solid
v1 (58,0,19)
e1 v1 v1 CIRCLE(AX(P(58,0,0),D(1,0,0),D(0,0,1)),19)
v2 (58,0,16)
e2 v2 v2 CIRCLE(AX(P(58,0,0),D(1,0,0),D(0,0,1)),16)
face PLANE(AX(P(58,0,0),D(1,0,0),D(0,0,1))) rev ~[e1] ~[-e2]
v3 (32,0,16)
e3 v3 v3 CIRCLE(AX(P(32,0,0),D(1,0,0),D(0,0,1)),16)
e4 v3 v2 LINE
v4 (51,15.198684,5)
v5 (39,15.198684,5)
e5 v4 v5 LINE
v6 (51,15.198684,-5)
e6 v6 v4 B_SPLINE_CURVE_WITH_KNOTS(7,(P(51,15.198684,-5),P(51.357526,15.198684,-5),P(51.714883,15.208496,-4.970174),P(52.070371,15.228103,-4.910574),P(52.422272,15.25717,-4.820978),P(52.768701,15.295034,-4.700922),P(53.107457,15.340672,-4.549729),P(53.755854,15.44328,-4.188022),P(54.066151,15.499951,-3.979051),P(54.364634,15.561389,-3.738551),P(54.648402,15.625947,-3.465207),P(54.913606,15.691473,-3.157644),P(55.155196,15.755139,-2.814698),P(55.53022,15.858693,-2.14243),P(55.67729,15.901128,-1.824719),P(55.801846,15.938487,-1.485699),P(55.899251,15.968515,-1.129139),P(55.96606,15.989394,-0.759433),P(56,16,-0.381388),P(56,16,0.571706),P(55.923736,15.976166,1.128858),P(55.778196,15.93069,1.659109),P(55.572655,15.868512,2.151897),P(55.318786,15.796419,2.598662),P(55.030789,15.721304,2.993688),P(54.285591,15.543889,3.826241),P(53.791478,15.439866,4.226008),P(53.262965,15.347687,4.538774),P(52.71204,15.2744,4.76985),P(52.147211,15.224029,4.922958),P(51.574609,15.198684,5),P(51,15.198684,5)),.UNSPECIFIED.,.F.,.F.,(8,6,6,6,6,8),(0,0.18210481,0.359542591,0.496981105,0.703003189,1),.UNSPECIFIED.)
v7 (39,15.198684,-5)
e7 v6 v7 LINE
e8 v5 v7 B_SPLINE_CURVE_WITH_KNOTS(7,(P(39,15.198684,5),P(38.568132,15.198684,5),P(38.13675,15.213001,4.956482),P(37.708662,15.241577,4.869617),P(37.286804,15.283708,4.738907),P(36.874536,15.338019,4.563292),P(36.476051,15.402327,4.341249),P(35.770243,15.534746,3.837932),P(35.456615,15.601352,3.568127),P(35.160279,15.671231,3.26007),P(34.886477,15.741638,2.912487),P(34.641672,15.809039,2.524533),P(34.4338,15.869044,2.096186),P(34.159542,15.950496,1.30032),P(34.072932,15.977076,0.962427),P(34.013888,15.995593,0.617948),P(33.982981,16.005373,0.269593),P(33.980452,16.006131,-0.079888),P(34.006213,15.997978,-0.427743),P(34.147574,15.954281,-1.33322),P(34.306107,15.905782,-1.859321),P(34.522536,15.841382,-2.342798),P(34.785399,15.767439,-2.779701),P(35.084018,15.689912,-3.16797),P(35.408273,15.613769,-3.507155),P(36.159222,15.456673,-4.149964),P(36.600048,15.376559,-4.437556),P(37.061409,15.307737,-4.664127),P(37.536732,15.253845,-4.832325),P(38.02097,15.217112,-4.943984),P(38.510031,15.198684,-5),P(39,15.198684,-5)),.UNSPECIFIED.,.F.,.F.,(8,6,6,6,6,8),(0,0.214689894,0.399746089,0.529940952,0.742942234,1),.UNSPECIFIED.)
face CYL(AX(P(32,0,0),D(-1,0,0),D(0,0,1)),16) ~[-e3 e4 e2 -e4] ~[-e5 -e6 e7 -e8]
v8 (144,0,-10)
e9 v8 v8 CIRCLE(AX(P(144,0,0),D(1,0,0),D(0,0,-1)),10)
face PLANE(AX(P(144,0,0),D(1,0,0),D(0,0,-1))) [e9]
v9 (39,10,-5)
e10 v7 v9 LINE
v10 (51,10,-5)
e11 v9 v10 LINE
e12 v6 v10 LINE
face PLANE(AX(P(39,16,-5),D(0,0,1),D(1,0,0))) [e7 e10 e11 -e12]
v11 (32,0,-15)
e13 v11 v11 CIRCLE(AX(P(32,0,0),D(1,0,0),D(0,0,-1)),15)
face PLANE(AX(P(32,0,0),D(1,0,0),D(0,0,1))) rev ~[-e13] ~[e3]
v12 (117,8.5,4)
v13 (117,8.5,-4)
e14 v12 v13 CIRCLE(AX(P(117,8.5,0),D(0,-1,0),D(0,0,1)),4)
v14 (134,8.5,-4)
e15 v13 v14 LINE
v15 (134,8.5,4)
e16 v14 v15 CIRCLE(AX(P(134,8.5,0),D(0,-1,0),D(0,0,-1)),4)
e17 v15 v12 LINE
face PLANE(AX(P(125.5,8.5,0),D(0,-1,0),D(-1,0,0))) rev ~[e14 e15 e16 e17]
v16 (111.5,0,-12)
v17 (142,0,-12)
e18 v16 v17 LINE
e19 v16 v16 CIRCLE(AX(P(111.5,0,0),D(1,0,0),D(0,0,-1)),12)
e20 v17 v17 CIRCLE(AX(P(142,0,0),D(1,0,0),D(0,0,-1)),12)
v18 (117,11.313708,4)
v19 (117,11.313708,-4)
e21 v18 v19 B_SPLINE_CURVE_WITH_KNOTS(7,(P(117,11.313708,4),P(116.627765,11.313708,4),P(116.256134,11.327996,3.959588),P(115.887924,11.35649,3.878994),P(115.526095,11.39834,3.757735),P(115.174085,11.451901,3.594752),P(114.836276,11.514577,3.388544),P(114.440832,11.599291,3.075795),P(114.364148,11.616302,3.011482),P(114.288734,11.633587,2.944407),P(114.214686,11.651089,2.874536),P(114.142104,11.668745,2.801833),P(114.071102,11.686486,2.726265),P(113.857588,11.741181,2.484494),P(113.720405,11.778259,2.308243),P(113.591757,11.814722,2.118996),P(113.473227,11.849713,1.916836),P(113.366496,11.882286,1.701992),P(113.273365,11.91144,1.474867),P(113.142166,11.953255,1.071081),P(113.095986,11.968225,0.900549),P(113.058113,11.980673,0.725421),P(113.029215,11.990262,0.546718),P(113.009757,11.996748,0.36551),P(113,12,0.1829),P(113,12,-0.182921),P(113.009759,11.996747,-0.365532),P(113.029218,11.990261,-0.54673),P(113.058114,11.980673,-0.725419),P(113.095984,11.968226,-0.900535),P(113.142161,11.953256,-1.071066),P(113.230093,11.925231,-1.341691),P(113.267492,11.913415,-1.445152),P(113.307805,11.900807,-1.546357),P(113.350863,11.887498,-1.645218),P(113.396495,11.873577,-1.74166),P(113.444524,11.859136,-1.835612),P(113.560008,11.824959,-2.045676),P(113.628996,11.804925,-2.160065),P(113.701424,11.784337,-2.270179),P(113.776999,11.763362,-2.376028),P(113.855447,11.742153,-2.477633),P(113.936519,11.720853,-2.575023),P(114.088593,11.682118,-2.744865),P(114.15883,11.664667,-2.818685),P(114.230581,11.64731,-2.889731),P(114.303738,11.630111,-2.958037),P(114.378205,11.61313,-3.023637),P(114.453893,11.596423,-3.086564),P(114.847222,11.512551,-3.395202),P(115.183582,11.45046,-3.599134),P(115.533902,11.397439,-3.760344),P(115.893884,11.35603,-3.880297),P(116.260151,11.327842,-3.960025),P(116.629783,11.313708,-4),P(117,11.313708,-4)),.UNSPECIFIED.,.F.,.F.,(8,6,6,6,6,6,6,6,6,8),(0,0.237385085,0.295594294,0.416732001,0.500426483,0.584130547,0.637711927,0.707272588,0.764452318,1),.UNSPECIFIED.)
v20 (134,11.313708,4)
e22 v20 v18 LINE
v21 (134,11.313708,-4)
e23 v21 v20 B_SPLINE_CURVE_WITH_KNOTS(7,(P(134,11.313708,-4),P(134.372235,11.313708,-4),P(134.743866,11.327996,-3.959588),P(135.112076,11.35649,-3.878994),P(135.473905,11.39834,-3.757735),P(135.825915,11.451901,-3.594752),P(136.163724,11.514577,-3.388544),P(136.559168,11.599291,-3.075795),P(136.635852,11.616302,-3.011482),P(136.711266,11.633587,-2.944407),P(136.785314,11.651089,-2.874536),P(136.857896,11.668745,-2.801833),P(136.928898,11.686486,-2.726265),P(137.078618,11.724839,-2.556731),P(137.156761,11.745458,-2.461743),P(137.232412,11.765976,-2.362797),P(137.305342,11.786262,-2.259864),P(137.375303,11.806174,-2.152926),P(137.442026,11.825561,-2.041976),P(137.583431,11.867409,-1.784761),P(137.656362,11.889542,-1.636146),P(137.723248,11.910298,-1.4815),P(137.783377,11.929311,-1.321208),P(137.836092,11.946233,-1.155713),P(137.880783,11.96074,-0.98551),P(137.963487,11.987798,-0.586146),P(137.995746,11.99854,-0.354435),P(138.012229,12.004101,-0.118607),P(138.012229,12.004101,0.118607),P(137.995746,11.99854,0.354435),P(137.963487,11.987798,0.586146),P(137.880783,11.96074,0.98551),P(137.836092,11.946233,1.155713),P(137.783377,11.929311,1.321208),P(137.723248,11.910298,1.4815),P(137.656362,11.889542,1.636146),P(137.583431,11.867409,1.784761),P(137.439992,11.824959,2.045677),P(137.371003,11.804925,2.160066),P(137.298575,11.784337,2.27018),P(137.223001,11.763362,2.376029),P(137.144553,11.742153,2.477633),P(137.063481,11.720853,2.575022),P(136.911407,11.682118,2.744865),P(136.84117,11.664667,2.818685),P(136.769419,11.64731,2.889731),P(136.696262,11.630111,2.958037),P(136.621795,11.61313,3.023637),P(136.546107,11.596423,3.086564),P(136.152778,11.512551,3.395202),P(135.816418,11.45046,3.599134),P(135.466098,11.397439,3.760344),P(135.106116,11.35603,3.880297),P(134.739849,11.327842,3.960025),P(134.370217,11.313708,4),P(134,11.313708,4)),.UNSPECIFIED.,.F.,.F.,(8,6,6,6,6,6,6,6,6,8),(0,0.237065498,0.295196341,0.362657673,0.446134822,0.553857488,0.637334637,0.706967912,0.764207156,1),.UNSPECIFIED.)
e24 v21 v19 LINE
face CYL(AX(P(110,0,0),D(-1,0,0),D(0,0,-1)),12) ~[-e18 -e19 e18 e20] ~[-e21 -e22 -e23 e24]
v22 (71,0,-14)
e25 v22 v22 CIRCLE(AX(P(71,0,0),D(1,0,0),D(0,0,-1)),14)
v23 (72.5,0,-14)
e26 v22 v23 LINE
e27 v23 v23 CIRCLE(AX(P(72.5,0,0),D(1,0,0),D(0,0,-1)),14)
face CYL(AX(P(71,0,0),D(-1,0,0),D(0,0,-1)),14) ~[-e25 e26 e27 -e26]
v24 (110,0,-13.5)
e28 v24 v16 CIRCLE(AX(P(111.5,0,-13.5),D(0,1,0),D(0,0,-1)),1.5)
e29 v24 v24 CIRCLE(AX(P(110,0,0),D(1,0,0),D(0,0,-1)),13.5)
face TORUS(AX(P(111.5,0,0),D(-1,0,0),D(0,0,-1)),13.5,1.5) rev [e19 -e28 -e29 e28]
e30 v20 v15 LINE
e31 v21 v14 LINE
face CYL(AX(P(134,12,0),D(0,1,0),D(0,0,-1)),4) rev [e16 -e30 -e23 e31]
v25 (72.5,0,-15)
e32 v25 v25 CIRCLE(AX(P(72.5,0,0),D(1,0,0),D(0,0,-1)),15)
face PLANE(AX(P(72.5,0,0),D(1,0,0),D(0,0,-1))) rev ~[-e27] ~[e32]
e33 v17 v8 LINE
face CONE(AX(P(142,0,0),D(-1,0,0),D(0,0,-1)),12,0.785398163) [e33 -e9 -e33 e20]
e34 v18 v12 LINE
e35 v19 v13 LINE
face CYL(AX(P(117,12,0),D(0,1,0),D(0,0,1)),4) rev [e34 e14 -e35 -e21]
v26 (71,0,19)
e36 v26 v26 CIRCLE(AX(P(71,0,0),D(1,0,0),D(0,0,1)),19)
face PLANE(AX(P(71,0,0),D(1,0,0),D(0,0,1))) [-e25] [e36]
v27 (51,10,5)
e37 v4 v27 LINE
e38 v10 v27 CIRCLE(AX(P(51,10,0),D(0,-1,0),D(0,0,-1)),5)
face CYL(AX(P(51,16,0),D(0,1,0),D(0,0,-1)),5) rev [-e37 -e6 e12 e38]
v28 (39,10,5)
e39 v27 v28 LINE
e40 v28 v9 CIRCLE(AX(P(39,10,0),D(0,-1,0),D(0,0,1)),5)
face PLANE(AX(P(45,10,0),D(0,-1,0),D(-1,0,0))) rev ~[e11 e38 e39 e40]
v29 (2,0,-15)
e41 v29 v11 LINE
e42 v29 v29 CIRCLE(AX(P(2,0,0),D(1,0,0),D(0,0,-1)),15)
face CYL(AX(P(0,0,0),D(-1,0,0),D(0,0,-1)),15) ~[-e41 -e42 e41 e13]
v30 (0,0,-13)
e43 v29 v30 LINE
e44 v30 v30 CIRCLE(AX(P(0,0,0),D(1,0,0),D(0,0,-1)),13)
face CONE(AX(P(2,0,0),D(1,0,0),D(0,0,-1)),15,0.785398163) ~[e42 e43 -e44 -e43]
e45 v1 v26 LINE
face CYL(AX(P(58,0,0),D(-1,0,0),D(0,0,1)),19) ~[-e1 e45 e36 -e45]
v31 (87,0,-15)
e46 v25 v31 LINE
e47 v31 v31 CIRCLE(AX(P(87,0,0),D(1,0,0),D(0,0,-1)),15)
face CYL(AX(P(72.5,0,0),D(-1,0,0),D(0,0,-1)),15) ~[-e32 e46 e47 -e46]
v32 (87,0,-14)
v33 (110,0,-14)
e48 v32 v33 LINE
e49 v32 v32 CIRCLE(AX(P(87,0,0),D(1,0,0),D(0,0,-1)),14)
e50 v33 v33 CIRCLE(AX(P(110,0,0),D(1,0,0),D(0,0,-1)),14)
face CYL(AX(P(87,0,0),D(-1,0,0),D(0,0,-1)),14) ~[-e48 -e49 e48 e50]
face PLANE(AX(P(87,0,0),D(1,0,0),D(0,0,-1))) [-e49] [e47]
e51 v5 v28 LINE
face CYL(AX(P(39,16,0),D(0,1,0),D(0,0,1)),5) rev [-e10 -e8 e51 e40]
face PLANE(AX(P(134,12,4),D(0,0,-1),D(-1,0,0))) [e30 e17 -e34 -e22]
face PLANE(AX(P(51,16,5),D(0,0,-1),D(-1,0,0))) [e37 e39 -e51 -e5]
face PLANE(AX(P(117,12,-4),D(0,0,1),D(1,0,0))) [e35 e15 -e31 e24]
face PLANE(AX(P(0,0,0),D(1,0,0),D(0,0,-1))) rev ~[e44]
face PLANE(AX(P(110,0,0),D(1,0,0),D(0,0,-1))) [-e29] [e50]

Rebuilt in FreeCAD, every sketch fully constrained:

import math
import FreeCAD as App
import Part
import Sketcher
from FreeCAD import Vector


def edges_at(feature, points):
    """Names of the edges that pass closest to the given points."""
    edges = feature.Shape.Edges
    near = lambda p: min(range(len(edges)), key=lambda i: edges[i].distToShape(Part.Vertex(*p))[0])
    return sorted({f"Edge{near(p) + 1}" for p in points})

doc = App.newDocument("Part")
body = doc.addObject("PartDesign::Body", "Body")

# Sketch on YZ plane
sketch1 = body.newObject("Sketcher::SketchObject", "Sketch")
sketch1.AttachmentSupport = (doc.getObject("YZ_Plane"), [""])
sketch1.MapMode = "FlatFace"
sketch1.addGeometry(Part.Circle(Vector(0, 0, 0), Vector(0, 0, 1), 15), False)
sketch1.addConstraint([
    Sketcher.Constraint("Coincident", 0, 3, -1, 1),
    Sketcher.Constraint("Diameter", 0, 30.0),
])
pad1 = body.newObject("PartDesign::Pad", "Pad")
pad1.Profile = sketch1
pad1.Length = 32
doc.recompute()

chamfer = body.newObject("PartDesign::Chamfer", "Chamfer")
chamfer.Base = (pad1, edges_at(pad1, [(0, 0, 15)]))
chamfer.Size = 2

# Sketch on YZ plane
sketch2 = body.newObject("Sketcher::SketchObject", "Sketch001")
sketch2.AttachmentSupport = (doc.getObject("YZ_Plane"), [""])
sketch2.MapMode = "FlatFace"
sketch2.AttachmentOffset = App.Placement(Vector(0, 0, 32), App.Rotation())
sketch2.addGeometry(Part.Circle(Vector(0, 0, 0), Vector(0, 0, 1), 16), False)
sketch2.addConstraint([
    Sketcher.Constraint("Coincident", 0, 3, -1, 1),
    Sketcher.Constraint("Diameter", 0, 32.0),
])
pad2 = body.newObject("PartDesign::Pad", "Pad001")
pad2.Profile = sketch2
pad2.Length = 26

# Sketch on YZ plane
sketch3 = body.newObject("Sketcher::SketchObject", "Sketch002")
sketch3.AttachmentSupport = (doc.getObject("YZ_Plane"), [""])
sketch3.MapMode = "FlatFace"
sketch3.AttachmentOffset = App.Placement(Vector(0, 0, 58), App.Rotation())
sketch3.addGeometry(Part.Circle(Vector(0, 0, 0), Vector(0, 0, 1), 19), False)
sketch3.addConstraint([
    Sketcher.Constraint("Coincident", 0, 3, -1, 1),
    Sketcher.Constraint("Diameter", 0, 38.0),
])
pad3 = body.newObject("PartDesign::Pad", "Pad002")
pad3.Profile = sketch3
pad3.Length = 13

# Sketch on YZ plane
sketch4 = body.newObject("Sketcher::SketchObject", "Sketch003")
sketch4.AttachmentSupport = (doc.getObject("YZ_Plane"), [""])
sketch4.MapMode = "FlatFace"
sketch4.AttachmentOffset = App.Placement(Vector(0, 0, 71), App.Rotation())
sketch4.addGeometry(Part.Circle(Vector(0, 0, 0), Vector(0, 0, 1), 14), False)
sketch4.addConstraint([
    Sketcher.Constraint("Coincident", 0, 3, -1, 1),
    Sketcher.Constraint("Diameter", 0, 28.0),
])
pad4 = body.newObject("PartDesign::Pad", "Pad003")
pad4.Profile = sketch4
pad4.Length = 1.5

# Sketch on YZ plane
sketch5 = body.newObject("Sketcher::SketchObject", "Sketch004")
sketch5.AttachmentSupport = (doc.getObject("YZ_Plane"), [""])
sketch5.MapMode = "FlatFace"
sketch5.AttachmentOffset = App.Placement(Vector(0, 0, 72.5), App.Rotation())
sketch5.addGeometry(Part.Circle(Vector(0, 0, 0), Vector(0, 0, 1), 15), False)
sketch5.addConstraint([
    Sketcher.Constraint("Coincident", 0, 3, -1, 1),
    Sketcher.Constraint("Diameter", 0, 30.0),
])
pad5 = body.newObject("PartDesign::Pad", "Pad004")
pad5.Profile = sketch5
pad5.Length = 14.5

# Sketch on YZ plane
sketch6 = body.newObject("Sketcher::SketchObject", "Sketch005")
sketch6.AttachmentSupport = (doc.getObject("YZ_Plane"), [""])
sketch6.MapMode = "FlatFace"
sketch6.AttachmentOffset = App.Placement(Vector(0, 0, 87), App.Rotation())
sketch6.addGeometry(Part.Circle(Vector(0, 0, 0), Vector(0, 0, 1), 14), False)
sketch6.addConstraint([
    Sketcher.Constraint("Coincident", 0, 3, -1, 1),
    Sketcher.Constraint("Diameter", 0, 28.0),
])
pad6 = body.newObject("PartDesign::Pad", "Pad005")
pad6.Profile = sketch6
pad6.Length = 23

# Sketch on YZ plane
sketch7 = body.newObject("Sketcher::SketchObject", "Sketch006")
sketch7.AttachmentSupport = (doc.getObject("YZ_Plane"), [""])
sketch7.MapMode = "FlatFace"
sketch7.AttachmentOffset = App.Placement(Vector(0, 0, 110), App.Rotation())
sketch7.addGeometry(Part.Circle(Vector(0, 0, 0), Vector(0, 0, 1), 12), False)
sketch7.addConstraint([
    Sketcher.Constraint("Coincident", 0, 3, -1, 1),
    Sketcher.Constraint("Diameter", 0, 24.0),
])
pad7 = body.newObject("PartDesign::Pad", "Pad006")
pad7.Profile = sketch7
pad7.Length = 34
doc.recompute()

fillet = body.newObject("PartDesign::Fillet", "Fillet")
fillet.Base = (pad7, edges_at(pad7, [(110, 0, 12)]))
fillet.Radius = 1.5
doc.recompute()

chamfer2 = body.newObject("PartDesign::Chamfer", "Chamfer001")
chamfer2.Base = (fillet, edges_at(fillet, [(144, 0, 12)]))
chamfer2.Size = 2

# Sketch on XZ plane
sketch8 = body.newObject("Sketcher::SketchObject", "Sketch007")
sketch8.AttachmentSupport = (doc.getObject("XZ_Plane"), [""])
sketch8.MapMode = "FlatFace"
sketch8.AttachmentOffset = App.Placement(Vector(0, 0, -16), App.Rotation())
sketch8.addGeometry([
    Part.LineSegment(Vector(51, -5, 0), Vector(39, -5, 0)),
    Part.ArcOfCircle(Part.Circle(Vector(39, 0, 0), Vector(0, 0, 1), 5), math.radians(90), math.radians(270)),
    Part.LineSegment(Vector(39, 5, 0), Vector(51, 5, 0)),
    Part.ArcOfCircle(Part.Circle(Vector(51, 0, 0), Vector(0, 0, 1), 5), math.radians(-90), math.radians(90)),
], False)
sketch8.addConstraint([
    Sketcher.Constraint("Tangent", 0, 2, 1, 2),
    Sketcher.Constraint("Tangent", 1, 1, 2, 1),
    Sketcher.Constraint("Tangent", 2, 2, 3, 2),
    Sketcher.Constraint("Tangent", 3, 1, 0, 1),
    Sketcher.Constraint("Horizontal", 0),
    Sketcher.Constraint("Horizontal", 2),
    Sketcher.Constraint("PointOnObject", 1, 3, -1),
    Sketcher.Constraint("Radius", 1, 5.0),
    Sketcher.Constraint("DistanceX", 0, 2, 0, 1, 12.0),
    Sketcher.Constraint("DistanceX", -1, 1, 1, 3, 39.0),
])
pocket1 = body.newObject("PartDesign::Pocket", "Pocket")
pocket1.Profile = sketch8
pocket1.Length = 6
pocket1.Reversed = True

# Sketch on XZ plane
sketch9 = body.newObject("Sketcher::SketchObject", "Sketch008")
sketch9.AttachmentSupport = (doc.getObject("XZ_Plane"), [""])
sketch9.MapMode = "FlatFace"
sketch9.AttachmentOffset = App.Placement(Vector(0, 0, -12), App.Rotation())
sketch9.addGeometry([
    Part.LineSegment(Vector(134, -4, 0), Vector(117, -4, 0)),
    Part.ArcOfCircle(Part.Circle(Vector(117, 0, 0), Vector(0, 0, 1), 4), math.radians(90), math.radians(270)),
    Part.LineSegment(Vector(117, 4, 0), Vector(134, 4, 0)),
    Part.ArcOfCircle(Part.Circle(Vector(134, 0, 0), Vector(0, 0, 1), 4), math.radians(-90), math.radians(90)),
], False)
sketch9.addConstraint([
    Sketcher.Constraint("Tangent", 0, 2, 1, 2),
    Sketcher.Constraint("Tangent", 1, 1, 2, 1),
    Sketcher.Constraint("Tangent", 2, 2, 3, 2),
    Sketcher.Constraint("Tangent", 3, 1, 0, 1),
    Sketcher.Constraint("Horizontal", 0),
    Sketcher.Constraint("Horizontal", 2),
    Sketcher.Constraint("PointOnObject", 1, 3, -1),
    Sketcher.Constraint("Radius", 1, 4.0),
    Sketcher.Constraint("DistanceX", 0, 2, 0, 1, 17.0),
    Sketcher.Constraint("DistanceX", -1, 1, 1, 3, 117.0),
])
pocket2 = body.newObject("PartDesign::Pocket", "Pocket001")
pocket2.Profile = sketch9
pocket2.Length = 3.5
pocket2.Reversed = True

doc.recompute()
